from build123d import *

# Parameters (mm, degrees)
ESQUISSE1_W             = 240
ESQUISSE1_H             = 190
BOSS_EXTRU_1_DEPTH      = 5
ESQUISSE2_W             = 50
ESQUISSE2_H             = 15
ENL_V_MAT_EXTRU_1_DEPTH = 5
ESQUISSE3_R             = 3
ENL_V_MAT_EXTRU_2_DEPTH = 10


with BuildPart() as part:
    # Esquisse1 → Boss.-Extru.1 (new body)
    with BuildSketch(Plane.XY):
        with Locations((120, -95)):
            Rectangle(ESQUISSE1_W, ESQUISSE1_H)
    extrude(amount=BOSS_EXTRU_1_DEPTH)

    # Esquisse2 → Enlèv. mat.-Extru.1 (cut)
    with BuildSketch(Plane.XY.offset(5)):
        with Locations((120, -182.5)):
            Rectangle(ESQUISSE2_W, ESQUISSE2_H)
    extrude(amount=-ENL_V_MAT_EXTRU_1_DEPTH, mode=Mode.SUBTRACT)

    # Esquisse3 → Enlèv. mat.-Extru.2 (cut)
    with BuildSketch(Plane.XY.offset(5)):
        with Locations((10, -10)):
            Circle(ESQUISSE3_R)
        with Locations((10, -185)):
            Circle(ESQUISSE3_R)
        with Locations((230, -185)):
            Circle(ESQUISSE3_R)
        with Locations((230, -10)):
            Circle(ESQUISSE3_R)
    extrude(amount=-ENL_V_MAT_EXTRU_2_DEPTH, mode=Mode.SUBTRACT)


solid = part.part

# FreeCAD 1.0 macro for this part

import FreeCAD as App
import Part
import Sketcher

V = App.Vector
Q = App.Units.Quantity


def add_polygon(sketch, points):
    """Adds a closed chain of lines whose ends are joined by coincident constraints."""
    first, n = sketch.GeometryCount, len(points)
    for a, b in zip(points, points[1:] + points[:1]):
        sketch.addGeometry(Part.LineSegment(App.Vector(*a, 0), App.Vector(*b, 0)), False)
    for i in range(n):
        sketch.addConstraint(Sketcher.Constraint("Coincident", first + i, 2, first + (i + 1) % n, 1))

doc = App.newDocument("Part")
body = doc.addObject("PartDesign::Body", "Body")

# Sketch on XY plane
sketch1 = body.newObject("Sketcher::SketchObject", "Sketch")
sketch1.AttachmentSupport = (doc.getObject("XY_Plane"), [""])
sketch1.MapMode = "FlatFace"
add_polygon(sketch1, [(0, 0), (0, -190), (240, -190), (240, 0)])  # lines 0-3
sketch1.addConstraint([
    Sketcher.Constraint("Vertical", 0),
    Sketcher.Constraint("Horizontal", 1),
    Sketcher.Constraint("Vertical", 2),
    Sketcher.Constraint("Horizontal", 3),
    Sketcher.Constraint("Coincident", 3, 2, -1, 1),
    Sketcher.Constraint("DistanceX", 1, 1, 1, 2, Q("240 mm")),
    Sketcher.Constraint("DistanceY", 0, 2, 0, 1, Q("190 mm")),
])
pad1 = body.newObject("PartDesign::Pad", "Pad")
pad1.Profile = sketch1
pad1.Length = 5

# Sketch on XY plane
sketch2 = body.newObject("Sketcher::SketchObject", "Sketch001")
sketch2.AttachmentSupport = (doc.getObject("XY_Plane"), [""])
sketch2.MapMode = "FlatFace"
sketch2.AttachmentOffset = App.Placement(V(0, 0, 5), App.Rotation())
add_polygon(sketch2, [(95, -175), (95, -190), (145, -190), (145, -175)])  # lines 0-3
sketch2.addConstraint([
    Sketcher.Constraint("Vertical", 0),
    Sketcher.Constraint("Horizontal", 1),
    Sketcher.Constraint("Vertical", 2),
    Sketcher.Constraint("Horizontal", 3),
    Sketcher.Constraint("DistanceX", 1, 1, 1, 2, Q("50 mm")),
    Sketcher.Constraint("DistanceY", 0, 2, 0, 1, Q("15 mm")),
    Sketcher.Constraint("DistanceX", -1, 1, 0, 2, Q("95 mm")),
    Sketcher.Constraint("DistanceY", 0, 2, -1, 1, Q("190 mm")),
])
pocket1 = body.newObject("PartDesign::Pocket", "Pocket")
pocket1.Profile = sketch2
pocket1.Length = 5

# Sketch on XY plane
sketch3 = body.newObject("Sketcher::SketchObject", "Sketch002")
sketch3.AttachmentSupport = (doc.getObject("XY_Plane"), [""])
sketch3.MapMode = "FlatFace"
sketch3.AttachmentOffset = App.Placement(V(0, 0, 5), App.Rotation())
sketch3.addGeometry([
    Part.Circle(V(10, -10, 0), V(0, 0, 1), 3),
    Part.Circle(V(10, -185, 0), V(0, 0, 1), 3),
    Part.Circle(V(230, -185, 0), V(0, 0, 1), 3),
    Part.Circle(V(230, -10, 0), V(0, 0, 1), 3),
], False)
sketch3.addConstraint([
    Sketcher.Constraint("Equal", 0, 1),
    Sketcher.Constraint("Equal", 1, 2),
    Sketcher.Constraint("Equal", 2, 3),
    Sketcher.Constraint("Horizontal", 1, 3, 2, 3),
    Sketcher.Constraint("Horizontal", 0, 3, 3, 3),
    Sketcher.Constraint("Vertical", 0, 3, 1, 3),
    Sketcher.Constraint("Vertical", 2, 3, 3, 3),
    Sketcher.Constraint("Diameter", 0, Q("6 mm")),
    Sketcher.Constraint("DistanceX", -1, 1, 0, 3, Q("10 mm")),
    Sketcher.Constraint("DistanceY", 0, 3, -1, 1, Q("10 mm")),
    Sketcher.Constraint("DistanceY", 1, 3, -1, 1, Q("185 mm")),
    Sketcher.Constraint("DistanceX", -1, 1, 2, 3, Q("230 mm")),
])
pocket2 = body.newObject("PartDesign::Pocket", "Pocket001")
pocket2.Profile = sketch3
pocket2.Length = 10

doc.recompute()
